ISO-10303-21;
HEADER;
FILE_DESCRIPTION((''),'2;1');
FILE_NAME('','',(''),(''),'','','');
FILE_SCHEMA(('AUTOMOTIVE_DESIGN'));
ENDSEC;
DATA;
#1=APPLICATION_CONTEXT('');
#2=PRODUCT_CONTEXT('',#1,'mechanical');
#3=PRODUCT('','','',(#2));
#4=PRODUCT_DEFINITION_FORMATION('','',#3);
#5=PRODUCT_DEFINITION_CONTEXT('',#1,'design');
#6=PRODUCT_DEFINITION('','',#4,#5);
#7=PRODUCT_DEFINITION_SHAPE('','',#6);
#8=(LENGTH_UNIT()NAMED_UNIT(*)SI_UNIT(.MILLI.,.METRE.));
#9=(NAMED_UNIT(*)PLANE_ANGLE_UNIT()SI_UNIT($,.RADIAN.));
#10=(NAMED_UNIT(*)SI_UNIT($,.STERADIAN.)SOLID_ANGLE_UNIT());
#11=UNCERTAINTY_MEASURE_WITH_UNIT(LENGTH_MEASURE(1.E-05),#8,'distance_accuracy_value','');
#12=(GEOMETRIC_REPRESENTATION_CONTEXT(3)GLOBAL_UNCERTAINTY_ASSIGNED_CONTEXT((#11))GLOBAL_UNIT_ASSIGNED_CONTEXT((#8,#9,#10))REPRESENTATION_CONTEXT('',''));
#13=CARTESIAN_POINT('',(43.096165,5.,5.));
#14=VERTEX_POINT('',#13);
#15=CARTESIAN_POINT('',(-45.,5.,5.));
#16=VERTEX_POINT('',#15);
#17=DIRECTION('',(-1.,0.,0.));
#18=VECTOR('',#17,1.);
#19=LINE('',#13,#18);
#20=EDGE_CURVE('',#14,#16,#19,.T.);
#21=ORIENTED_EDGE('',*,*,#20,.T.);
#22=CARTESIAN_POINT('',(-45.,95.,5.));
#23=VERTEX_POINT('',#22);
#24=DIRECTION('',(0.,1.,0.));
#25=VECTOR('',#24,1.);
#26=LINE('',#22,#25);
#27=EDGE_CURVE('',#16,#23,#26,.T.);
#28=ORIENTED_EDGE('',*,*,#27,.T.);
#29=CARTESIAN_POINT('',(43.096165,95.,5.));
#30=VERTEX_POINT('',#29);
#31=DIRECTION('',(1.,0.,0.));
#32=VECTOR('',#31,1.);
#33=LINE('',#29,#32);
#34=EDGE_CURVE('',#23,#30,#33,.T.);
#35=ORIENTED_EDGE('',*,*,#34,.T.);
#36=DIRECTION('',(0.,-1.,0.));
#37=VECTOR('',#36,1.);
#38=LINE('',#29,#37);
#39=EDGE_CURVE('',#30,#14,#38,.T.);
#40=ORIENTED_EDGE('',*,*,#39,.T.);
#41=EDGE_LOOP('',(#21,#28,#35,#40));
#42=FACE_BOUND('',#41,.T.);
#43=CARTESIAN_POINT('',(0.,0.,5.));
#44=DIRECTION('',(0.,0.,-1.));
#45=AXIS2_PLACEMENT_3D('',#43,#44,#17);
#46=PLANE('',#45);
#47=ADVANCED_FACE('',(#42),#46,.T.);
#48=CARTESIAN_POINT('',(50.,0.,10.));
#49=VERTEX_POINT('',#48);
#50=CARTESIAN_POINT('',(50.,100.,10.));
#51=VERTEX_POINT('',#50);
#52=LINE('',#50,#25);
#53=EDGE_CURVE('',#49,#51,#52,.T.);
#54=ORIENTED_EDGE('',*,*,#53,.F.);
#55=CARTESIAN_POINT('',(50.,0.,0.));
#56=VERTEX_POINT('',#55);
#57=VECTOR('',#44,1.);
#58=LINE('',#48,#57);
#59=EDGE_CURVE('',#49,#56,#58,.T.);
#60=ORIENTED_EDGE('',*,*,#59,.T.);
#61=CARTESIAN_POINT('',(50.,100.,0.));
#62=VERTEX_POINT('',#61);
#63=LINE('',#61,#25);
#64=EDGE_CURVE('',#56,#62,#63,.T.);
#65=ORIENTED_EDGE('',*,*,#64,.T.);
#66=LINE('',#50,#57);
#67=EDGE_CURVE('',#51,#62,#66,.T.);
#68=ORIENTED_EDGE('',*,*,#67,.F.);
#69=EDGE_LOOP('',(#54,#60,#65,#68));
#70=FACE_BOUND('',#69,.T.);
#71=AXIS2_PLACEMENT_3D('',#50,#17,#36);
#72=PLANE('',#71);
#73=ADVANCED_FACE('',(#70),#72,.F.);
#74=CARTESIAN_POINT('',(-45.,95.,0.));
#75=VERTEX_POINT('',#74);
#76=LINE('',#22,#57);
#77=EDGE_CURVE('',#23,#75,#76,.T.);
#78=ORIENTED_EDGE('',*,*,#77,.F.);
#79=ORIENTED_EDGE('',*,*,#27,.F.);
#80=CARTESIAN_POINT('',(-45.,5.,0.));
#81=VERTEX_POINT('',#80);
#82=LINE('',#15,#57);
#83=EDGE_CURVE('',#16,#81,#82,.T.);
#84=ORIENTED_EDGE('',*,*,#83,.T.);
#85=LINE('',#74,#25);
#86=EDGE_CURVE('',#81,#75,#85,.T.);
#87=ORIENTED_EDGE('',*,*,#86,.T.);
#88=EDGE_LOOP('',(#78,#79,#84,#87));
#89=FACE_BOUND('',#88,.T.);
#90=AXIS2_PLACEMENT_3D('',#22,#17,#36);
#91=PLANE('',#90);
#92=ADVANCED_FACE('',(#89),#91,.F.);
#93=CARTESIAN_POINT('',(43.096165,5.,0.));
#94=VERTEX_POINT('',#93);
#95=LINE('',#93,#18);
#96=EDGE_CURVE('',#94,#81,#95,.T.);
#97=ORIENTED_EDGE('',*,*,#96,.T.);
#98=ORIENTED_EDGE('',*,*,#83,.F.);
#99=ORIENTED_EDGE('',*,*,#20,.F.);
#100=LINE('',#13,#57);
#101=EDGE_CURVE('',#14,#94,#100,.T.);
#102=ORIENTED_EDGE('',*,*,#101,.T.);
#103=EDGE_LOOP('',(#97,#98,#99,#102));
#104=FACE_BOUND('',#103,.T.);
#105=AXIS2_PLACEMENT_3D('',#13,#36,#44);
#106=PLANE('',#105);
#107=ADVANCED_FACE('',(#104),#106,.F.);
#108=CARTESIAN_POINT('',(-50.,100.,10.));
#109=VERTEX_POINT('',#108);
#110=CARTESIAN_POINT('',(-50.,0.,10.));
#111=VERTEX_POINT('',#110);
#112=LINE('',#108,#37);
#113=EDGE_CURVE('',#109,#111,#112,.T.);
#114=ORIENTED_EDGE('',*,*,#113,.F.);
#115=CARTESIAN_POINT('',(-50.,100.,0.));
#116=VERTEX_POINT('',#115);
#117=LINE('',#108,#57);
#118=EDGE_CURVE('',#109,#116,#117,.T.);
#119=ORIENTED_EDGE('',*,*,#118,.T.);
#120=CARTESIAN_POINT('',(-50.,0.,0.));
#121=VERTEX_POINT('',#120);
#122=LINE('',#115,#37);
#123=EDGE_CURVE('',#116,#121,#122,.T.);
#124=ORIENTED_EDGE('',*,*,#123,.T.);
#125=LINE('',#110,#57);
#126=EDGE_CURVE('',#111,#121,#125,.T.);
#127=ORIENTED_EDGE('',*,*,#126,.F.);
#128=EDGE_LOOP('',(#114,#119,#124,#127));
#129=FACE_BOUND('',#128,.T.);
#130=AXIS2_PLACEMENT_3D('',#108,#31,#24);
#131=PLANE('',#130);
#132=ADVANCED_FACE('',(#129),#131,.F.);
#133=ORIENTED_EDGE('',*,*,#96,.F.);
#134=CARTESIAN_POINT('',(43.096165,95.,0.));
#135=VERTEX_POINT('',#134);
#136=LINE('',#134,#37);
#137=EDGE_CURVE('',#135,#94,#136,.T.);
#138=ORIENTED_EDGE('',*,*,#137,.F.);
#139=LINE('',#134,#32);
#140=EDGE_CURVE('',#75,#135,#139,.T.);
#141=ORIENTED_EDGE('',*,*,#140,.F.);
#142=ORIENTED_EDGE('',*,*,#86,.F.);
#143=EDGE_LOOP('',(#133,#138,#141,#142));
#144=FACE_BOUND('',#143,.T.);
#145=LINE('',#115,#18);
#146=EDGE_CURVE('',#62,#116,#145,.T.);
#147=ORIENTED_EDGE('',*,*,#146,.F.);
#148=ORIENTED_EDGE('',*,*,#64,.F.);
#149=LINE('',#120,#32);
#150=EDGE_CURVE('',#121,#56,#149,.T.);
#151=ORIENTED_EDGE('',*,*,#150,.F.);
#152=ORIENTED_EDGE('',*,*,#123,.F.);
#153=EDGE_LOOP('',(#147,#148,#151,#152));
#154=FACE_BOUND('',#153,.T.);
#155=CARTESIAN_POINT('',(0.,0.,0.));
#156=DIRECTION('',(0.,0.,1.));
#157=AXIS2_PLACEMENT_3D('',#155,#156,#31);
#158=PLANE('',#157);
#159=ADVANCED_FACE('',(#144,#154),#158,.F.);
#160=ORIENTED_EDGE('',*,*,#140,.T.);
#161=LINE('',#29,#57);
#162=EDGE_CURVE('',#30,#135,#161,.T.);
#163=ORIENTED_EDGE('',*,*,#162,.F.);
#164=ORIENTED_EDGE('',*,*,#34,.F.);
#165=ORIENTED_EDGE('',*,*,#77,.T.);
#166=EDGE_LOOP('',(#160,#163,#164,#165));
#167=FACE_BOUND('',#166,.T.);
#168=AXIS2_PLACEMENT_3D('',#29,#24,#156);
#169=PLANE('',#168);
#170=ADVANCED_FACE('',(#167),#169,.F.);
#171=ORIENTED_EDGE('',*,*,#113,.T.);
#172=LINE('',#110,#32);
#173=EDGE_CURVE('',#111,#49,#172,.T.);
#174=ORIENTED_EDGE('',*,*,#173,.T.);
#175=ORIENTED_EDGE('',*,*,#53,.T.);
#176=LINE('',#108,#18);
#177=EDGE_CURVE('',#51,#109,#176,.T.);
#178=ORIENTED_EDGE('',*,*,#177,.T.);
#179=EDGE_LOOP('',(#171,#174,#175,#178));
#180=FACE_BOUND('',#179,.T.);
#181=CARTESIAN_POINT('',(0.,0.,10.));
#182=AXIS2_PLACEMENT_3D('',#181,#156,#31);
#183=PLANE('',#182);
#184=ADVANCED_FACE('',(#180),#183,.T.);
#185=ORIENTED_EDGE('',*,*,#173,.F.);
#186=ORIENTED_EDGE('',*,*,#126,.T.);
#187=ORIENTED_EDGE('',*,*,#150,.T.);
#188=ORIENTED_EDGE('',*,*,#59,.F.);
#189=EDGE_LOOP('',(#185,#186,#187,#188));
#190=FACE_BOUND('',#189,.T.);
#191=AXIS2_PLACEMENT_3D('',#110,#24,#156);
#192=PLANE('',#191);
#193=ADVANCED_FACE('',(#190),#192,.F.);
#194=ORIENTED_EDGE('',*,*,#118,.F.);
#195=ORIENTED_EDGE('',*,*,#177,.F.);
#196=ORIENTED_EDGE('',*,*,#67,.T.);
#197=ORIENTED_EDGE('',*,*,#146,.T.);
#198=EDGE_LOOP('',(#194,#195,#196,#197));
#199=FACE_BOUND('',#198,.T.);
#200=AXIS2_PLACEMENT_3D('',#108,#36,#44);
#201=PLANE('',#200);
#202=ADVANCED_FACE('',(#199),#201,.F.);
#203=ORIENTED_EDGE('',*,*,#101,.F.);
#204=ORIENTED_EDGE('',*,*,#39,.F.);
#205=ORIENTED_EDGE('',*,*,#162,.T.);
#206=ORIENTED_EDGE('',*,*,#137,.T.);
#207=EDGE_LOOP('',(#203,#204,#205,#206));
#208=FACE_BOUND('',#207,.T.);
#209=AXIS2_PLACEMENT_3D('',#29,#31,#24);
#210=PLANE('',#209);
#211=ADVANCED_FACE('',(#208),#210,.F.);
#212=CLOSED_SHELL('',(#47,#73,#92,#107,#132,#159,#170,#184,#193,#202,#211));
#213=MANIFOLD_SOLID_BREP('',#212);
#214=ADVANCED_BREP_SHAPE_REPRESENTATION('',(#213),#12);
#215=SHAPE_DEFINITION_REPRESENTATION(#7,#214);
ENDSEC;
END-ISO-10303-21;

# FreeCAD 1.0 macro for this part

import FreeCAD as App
import Part
import Sketcher


def add_polygon(sketch, points):
    """Adds a closed chain of lines whose ends are joined by coincident constraints."""
    first, n = sketch.GeometryCount, len(points)
    for a, b in zip(points, points[1:] + points[:1]):
        sketch.addGeometry(Part.LineSegment(App.Vector(*a, 0), App.Vector(*b, 0)), False)
    for i in range(n):
        sketch.addConstraint(Sketcher.Constraint("Coincident", first + i, 2, first + (i + 1) % n, 1))

doc = App.newDocument("Part")
body = doc.addObject("PartDesign::Body", "Body")

sketch1 = body.newObject("Sketcher::SketchObject", "Sketch")
sketch1.AttachmentSupport = (doc.getObject("XY_Plane"), [""])
sketch1.MapMode = "FlatFace"
add_polygon(sketch1, [(-50, 100), (-50, 0), (50, 0), (50, 100)])
sketch1.addConstraint([
    Sketcher.Constraint("Vertical", 0),
    Sketcher.Constraint("Horizontal", 1),
    Sketcher.Constraint("Vertical", 2),
    Sketcher.Constraint("Horizontal", 3),
    Sketcher.Constraint("Symmetric", 0, 2, 1, 2, -1, 1),
    Sketcher.Constraint("Equal", 3, 0),
    Sketcher.Constraint("DistanceX", 1, 1, 1, 2, 100.0),
])
pad1 = body.newObject("PartDesign::Pad", "Pad")
pad1.Profile = sketch1
pad1.Length = 10

sketch2 = body.newObject("Sketcher::SketchObject", "Sketch001")
sketch2.AttachmentSupport = (doc.getObject("XY_Plane"), [""])
sketch2.MapMode = "FlatFace"
add_polygon(sketch2, [(43, 95), (43, 5), (-45, 5), (-45, 95)])
sketch2.addConstraint([
    Sketcher.Constraint("Vertical", 0),
    Sketcher.Constraint("Horizontal", 1),
    Sketcher.Constraint("Vertical", 2),
    Sketcher.Constraint("Horizontal", 3),
    Sketcher.Constraint("DistanceY", 0, 2, 0, 1, 90.0),
    Sketcher.Constraint("DistanceY", -1, 1, 0, 2, 5.0),
    Sketcher.Constraint("DistanceX", 1, 2, -1, 1, 45.0),
    Sketcher.Constraint("DistanceX", 1, 2, 1, 1, 88.096165),
])
pocket1 = body.newObject("PartDesign::Pocket", "Pocket")
pocket1.Profile = sketch2
pocket1.Length = 5
pocket1.Reversed = True

doc.recompute()
